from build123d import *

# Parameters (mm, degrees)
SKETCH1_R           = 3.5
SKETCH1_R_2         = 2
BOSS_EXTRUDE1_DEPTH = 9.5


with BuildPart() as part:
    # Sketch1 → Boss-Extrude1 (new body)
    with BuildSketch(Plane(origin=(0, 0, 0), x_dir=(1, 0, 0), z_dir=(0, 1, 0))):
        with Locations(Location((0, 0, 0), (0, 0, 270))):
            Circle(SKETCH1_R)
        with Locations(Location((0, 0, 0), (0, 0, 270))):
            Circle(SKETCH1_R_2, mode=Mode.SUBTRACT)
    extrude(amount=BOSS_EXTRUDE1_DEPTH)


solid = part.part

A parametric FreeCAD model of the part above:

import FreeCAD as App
import Part
import Sketcher
from FreeCAD import Vector
Q = App.Units.Quantity

doc = App.newDocument("Part")
params = doc.addObject("Spreadsheet::Sheet", "Params")
for row, (alias, value) in enumerate([
    ("sketch1_diameter", "7 mm"),
    ("sketch1_diameter2", "4 mm"),
    ("pad1_length", "9.5 mm"),
], start=1):
    params.set(f"A{row}", alias)
    params.set(f"B{row}", "=" + value)
    params.setAlias(f"B{row}", alias)

body = doc.addObject("PartDesign::Body", "Body")

# Sketch on XZ plane
sketch1 = doc.addObject("Sketcher::SketchObject", "Sketch")
body.addObject(sketch1)
sketch1.AttachmentSupport = (doc.XZ_Plane, [""])
sketch1.MapMode = "FlatFace"
sketch1.addGeometry(Part.Circle(Vector(0, 0, 0), Vector(0, 0, 1), 3.5), False)
sketch1.addGeometry(Part.Circle(Vector(0, 0, 0), Vector(0, 0, 1), 2), False)
sketch1.addConstraint(Sketcher.Constraint("Coincident", 0, 3, -1, 1))
sketch1.addConstraint(Sketcher.Constraint("Coincident", 1, 3, -1, 1))
sketch1.addConstraint(Sketcher.Constraint("Diameter", 0, Q("7 mm")))
sketch1.addConstraint(Sketcher.Constraint("Diameter", 1, Q("4 mm")))
sketch1.setExpression("Constraints[2]", "Params.sketch1_diameter")
sketch1.setExpression("Constraints[3]", "Params.sketch1_diameter2")
pad1 = doc.addObject("PartDesign::Pad", "Pad")
body.addObject(pad1)
pad1.Profile = sketch1
pad1.setExpression("Length", "Params.pad1_length")
pad1.Reversed = True

doc.recompute()
